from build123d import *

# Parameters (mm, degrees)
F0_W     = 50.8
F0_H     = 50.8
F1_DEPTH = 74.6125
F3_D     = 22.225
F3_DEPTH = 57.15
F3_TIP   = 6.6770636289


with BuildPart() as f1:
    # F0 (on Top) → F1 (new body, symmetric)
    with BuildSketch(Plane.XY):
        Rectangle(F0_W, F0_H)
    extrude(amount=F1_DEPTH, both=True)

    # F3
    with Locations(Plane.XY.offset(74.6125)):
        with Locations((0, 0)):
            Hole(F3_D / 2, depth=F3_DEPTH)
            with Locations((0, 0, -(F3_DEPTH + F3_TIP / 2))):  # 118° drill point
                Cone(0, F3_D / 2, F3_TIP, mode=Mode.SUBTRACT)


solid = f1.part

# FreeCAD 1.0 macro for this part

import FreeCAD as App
import Part
import Sketcher

V = App.Vector
Q = App.Units.Quantity


def add_polygon(sketch, points):
    """Adds a closed chain of lines whose ends are joined by coincident constraints."""
    first, n = sketch.GeometryCount, len(points)
    for a, b in zip(points, points[1:] + points[:1]):
        sketch.addGeometry(Part.LineSegment(App.Vector(*a, 0), App.Vector(*b, 0)), False)
    for i in range(n):
        sketch.addConstraint(Sketcher.Constraint("Coincident", first + i, 2, first + (i + 1) % n, 1))

doc = App.newDocument("Part")
params = doc.addObject("Spreadsheet::Sheet", "Params")
for row, (alias, value) in enumerate([
    ("sketch1_width", "2 in"),
    ("pad1_length", "5.875 in"),
    ("sketch2_diameter", "0.875 in"),
    ("hole_diameter", "0.875 in"),
    ("hole_depth", "2.25 in"),
], start=1):
    params.set(f"A{row}", alias)
    params.set(f"B{row}", "=" + value)
    params.setAlias(f"B{row}", alias)

body = doc.addObject("PartDesign::Body", "Body")

sketch1 = body.newObject("Sketcher::SketchObject", "Sketch")
sketch1.AttachmentSupport = (doc.getObject("XY_Plane"), [""])
sketch1.MapMode = "FlatFace"
add_polygon(sketch1, [(-25, 25), (-25, -25), (25, -25), (25, 25)])
sketch1.addConstraint(Sketcher.Constraint("Vertical", 0))
sketch1.addConstraint(Sketcher.Constraint("Horizontal", 1))
sketch1.addConstraint(Sketcher.Constraint("Vertical", 2))
sketch1.addConstraint(Sketcher.Constraint("Horizontal", 3))
sketch1.addConstraint(Sketcher.Constraint("Symmetric", 0, 2, 2, 2, -1, 1))
sketch1.addConstraint(Sketcher.Constraint("Equal", 3, 0))
sketch1.addConstraint(Sketcher.Constraint("DistanceX", 1, 1, 1, 2, Q("2 in")))
sketch1.setExpression("Constraints[10]", "Params.sketch1_width")
pad1 = body.newObject("PartDesign::Pad", "Pad")
pad1.Profile = sketch1
pad1.setExpression("Length", "Params.pad1_length")
pad1.Midplane = True

sketch2 = body.newObject("Sketcher::SketchObject", "Sketch001")
sketch2.AttachmentSupport = (doc.getObject("XY_Plane"), [""])
sketch2.MapMode = "FlatFace"
sketch2.AttachmentOffset = App.Placement(V(0, 0, 2.9375 * 25.4), App.Rotation())
sketch2.addGeometry(Part.Circle(V(0, 0, 0), V(0, 0, 1), 11), False)
sketch2.addConstraint(Sketcher.Constraint("Coincident", 0, 3, -1, 1))
sketch2.addConstraint(Sketcher.Constraint("Diameter", 0, Q("0.875 in")))
sketch2.setExpression("Constraints[1]", "Params.sketch2_diameter")
doc.recompute()
hole = body.newObject("PartDesign::Hole", "Hole")
hole.Profile = sketch2
hole.ThreadType = "None"
hole.setExpression("Diameter", "Params.hole_diameter")
hole.DepthType = "Dimension"
hole.setExpression("Depth", "Params.hole_depth")
hole.DrillPoint = "Angled"
hole.DrillPointAngle = 118

doc.recompute()
